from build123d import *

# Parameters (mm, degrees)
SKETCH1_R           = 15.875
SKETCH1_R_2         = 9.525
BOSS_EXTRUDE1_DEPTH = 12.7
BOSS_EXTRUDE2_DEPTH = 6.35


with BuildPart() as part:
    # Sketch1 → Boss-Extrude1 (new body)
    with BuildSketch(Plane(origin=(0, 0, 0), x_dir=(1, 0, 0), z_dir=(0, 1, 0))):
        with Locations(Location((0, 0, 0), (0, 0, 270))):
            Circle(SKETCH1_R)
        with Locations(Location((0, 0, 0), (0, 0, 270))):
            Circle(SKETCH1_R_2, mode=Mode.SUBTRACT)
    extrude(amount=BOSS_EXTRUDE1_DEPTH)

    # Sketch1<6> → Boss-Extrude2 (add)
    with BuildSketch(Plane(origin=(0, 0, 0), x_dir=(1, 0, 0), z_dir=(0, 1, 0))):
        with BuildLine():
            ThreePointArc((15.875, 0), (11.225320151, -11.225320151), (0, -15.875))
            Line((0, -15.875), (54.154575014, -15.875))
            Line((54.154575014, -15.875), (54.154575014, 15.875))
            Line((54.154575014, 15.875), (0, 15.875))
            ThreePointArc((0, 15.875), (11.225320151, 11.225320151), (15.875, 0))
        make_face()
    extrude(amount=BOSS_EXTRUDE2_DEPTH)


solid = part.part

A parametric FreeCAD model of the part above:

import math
import FreeCAD as App
import Part
import Sketcher
from FreeCAD import Vector
Q = App.Units.Quantity

doc = App.newDocument("Part")
params = doc.addObject("Spreadsheet::Sheet", "Params")
for row, (alias, value) in enumerate([
    ("sketch1_diameter", "1.25 in"),
    ("sketch1_diameter2", "0.75 in"),
    ("pad1_length", "0.5 in"),
    ("sketch2_radius", "0.625 in"),
    ("pad2_length", "0.25 in"),
], start=1):
    params.set(f"A{row}", alias)
    params.set(f"B{row}", "=" + value)
    params.setAlias(f"B{row}", alias)

body = doc.addObject("PartDesign::Body", "Body")

sketch1 = doc.addObject("Sketcher::SketchObject", "Sketch")
body.addObject(sketch1)
sketch1.AttachmentSupport = (doc.XZ_Plane, [""])
sketch1.MapMode = "FlatFace"
sketch1.addGeometry(Part.Circle(Vector(0, 0, 0), Vector(0, 0, 1), 16), False)
sketch1.addGeometry(Part.Circle(Vector(0, 0, 0), Vector(0, 0, 1), 10), False)
sketch1.addConstraint(Sketcher.Constraint("Coincident", 0, 3, -1, 1))
sketch1.addConstraint(Sketcher.Constraint("Coincident", 1, 3, -1, 1))
sketch1.addConstraint(Sketcher.Constraint("Diameter", 0, Q("1.25 in")))
sketch1.addConstraint(Sketcher.Constraint("Diameter", 1, Q("0.75 in")))
sketch1.setExpression("Constraints[2]", "Params.sketch1_diameter")
sketch1.setExpression("Constraints[3]", "Params.sketch1_diameter2")
pad1 = doc.addObject("PartDesign::Pad", "Pad")
body.addObject(pad1)
pad1.Profile = sketch1
pad1.setExpression("Length", "Params.pad1_length")
pad1.Reversed = True

sketch2 = doc.addObject("Sketcher::SketchObject", "Sketch001")
body.addObject(sketch2)
sketch2.AttachmentSupport = (doc.XZ_Plane, [""])
sketch2.MapMode = "FlatFace"
sketch2.addGeometry(Part.ArcOfCircle(Part.Circle(Vector(0, 0, 0), Vector(0, 0, 1), 16), math.radians(0), math.radians(90)), False)
sketch2.addGeometry(Part.LineSegment(Vector(0, 16, 0), Vector(54, 16, 0)), False)
sketch2.addGeometry(Part.LineSegment(Vector(54, 16, 0), Vector(54, -16, 0)), False)
sketch2.addGeometry(Part.LineSegment(Vector(54, -16, 0), Vector(0, -16, 0)), False)
sketch2.addGeometry(Part.ArcOfCircle(Part.Circle(Vector(0, 0, 0), Vector(0, 0, 1), 16), math.radians(-90), math.radians(0)), False)
sketch2.addConstraint(Sketcher.Constraint("Tangent", 0, 2, 1, 1))
sketch2.addConstraint(Sketcher.Constraint("Coincident", 1, 2, 2, 1))
sketch2.addConstraint(Sketcher.Constraint("Coincident", 2, 2, 3, 1))
sketch2.addConstraint(Sketcher.Constraint("Tangent", 3, 2, 4, 1))
sketch2.addConstraint(Sketcher.Constraint("Tangent", 4, 2, 0, 1))
sketch2.addConstraint(Sketcher.Constraint("Horizontal", 1))
sketch2.addConstraint(Sketcher.Constraint("Vertical", 2))
sketch2.addConstraint(Sketcher.Constraint("Horizontal", 3))
sketch2.addConstraint(Sketcher.Constraint("Coincident", 0, 3, -1, 1))
sketch2.addConstraint(Sketcher.Constraint("Equal", 0, 4))
sketch2.addConstraint(Sketcher.Constraint("PointOnObject", 4, 2, -1))
sketch2.addConstraint(Sketcher.Constraint("Radius", 0, Q("0.625 in")))
sketch2.addConstraint(Sketcher.Constraint("DistanceX", 1, 1, 1, 2, 54.154575))
sketch2.setExpression("Constraints[11]", "Params.sketch2_radius")
pad2 = doc.addObject("PartDesign::Pad", "Pad001")
body.addObject(pad2)
pad2.Profile = sketch2
pad2.setExpression("Length", "Params.pad2_length")
pad2.Reversed = True

doc.recompute()
